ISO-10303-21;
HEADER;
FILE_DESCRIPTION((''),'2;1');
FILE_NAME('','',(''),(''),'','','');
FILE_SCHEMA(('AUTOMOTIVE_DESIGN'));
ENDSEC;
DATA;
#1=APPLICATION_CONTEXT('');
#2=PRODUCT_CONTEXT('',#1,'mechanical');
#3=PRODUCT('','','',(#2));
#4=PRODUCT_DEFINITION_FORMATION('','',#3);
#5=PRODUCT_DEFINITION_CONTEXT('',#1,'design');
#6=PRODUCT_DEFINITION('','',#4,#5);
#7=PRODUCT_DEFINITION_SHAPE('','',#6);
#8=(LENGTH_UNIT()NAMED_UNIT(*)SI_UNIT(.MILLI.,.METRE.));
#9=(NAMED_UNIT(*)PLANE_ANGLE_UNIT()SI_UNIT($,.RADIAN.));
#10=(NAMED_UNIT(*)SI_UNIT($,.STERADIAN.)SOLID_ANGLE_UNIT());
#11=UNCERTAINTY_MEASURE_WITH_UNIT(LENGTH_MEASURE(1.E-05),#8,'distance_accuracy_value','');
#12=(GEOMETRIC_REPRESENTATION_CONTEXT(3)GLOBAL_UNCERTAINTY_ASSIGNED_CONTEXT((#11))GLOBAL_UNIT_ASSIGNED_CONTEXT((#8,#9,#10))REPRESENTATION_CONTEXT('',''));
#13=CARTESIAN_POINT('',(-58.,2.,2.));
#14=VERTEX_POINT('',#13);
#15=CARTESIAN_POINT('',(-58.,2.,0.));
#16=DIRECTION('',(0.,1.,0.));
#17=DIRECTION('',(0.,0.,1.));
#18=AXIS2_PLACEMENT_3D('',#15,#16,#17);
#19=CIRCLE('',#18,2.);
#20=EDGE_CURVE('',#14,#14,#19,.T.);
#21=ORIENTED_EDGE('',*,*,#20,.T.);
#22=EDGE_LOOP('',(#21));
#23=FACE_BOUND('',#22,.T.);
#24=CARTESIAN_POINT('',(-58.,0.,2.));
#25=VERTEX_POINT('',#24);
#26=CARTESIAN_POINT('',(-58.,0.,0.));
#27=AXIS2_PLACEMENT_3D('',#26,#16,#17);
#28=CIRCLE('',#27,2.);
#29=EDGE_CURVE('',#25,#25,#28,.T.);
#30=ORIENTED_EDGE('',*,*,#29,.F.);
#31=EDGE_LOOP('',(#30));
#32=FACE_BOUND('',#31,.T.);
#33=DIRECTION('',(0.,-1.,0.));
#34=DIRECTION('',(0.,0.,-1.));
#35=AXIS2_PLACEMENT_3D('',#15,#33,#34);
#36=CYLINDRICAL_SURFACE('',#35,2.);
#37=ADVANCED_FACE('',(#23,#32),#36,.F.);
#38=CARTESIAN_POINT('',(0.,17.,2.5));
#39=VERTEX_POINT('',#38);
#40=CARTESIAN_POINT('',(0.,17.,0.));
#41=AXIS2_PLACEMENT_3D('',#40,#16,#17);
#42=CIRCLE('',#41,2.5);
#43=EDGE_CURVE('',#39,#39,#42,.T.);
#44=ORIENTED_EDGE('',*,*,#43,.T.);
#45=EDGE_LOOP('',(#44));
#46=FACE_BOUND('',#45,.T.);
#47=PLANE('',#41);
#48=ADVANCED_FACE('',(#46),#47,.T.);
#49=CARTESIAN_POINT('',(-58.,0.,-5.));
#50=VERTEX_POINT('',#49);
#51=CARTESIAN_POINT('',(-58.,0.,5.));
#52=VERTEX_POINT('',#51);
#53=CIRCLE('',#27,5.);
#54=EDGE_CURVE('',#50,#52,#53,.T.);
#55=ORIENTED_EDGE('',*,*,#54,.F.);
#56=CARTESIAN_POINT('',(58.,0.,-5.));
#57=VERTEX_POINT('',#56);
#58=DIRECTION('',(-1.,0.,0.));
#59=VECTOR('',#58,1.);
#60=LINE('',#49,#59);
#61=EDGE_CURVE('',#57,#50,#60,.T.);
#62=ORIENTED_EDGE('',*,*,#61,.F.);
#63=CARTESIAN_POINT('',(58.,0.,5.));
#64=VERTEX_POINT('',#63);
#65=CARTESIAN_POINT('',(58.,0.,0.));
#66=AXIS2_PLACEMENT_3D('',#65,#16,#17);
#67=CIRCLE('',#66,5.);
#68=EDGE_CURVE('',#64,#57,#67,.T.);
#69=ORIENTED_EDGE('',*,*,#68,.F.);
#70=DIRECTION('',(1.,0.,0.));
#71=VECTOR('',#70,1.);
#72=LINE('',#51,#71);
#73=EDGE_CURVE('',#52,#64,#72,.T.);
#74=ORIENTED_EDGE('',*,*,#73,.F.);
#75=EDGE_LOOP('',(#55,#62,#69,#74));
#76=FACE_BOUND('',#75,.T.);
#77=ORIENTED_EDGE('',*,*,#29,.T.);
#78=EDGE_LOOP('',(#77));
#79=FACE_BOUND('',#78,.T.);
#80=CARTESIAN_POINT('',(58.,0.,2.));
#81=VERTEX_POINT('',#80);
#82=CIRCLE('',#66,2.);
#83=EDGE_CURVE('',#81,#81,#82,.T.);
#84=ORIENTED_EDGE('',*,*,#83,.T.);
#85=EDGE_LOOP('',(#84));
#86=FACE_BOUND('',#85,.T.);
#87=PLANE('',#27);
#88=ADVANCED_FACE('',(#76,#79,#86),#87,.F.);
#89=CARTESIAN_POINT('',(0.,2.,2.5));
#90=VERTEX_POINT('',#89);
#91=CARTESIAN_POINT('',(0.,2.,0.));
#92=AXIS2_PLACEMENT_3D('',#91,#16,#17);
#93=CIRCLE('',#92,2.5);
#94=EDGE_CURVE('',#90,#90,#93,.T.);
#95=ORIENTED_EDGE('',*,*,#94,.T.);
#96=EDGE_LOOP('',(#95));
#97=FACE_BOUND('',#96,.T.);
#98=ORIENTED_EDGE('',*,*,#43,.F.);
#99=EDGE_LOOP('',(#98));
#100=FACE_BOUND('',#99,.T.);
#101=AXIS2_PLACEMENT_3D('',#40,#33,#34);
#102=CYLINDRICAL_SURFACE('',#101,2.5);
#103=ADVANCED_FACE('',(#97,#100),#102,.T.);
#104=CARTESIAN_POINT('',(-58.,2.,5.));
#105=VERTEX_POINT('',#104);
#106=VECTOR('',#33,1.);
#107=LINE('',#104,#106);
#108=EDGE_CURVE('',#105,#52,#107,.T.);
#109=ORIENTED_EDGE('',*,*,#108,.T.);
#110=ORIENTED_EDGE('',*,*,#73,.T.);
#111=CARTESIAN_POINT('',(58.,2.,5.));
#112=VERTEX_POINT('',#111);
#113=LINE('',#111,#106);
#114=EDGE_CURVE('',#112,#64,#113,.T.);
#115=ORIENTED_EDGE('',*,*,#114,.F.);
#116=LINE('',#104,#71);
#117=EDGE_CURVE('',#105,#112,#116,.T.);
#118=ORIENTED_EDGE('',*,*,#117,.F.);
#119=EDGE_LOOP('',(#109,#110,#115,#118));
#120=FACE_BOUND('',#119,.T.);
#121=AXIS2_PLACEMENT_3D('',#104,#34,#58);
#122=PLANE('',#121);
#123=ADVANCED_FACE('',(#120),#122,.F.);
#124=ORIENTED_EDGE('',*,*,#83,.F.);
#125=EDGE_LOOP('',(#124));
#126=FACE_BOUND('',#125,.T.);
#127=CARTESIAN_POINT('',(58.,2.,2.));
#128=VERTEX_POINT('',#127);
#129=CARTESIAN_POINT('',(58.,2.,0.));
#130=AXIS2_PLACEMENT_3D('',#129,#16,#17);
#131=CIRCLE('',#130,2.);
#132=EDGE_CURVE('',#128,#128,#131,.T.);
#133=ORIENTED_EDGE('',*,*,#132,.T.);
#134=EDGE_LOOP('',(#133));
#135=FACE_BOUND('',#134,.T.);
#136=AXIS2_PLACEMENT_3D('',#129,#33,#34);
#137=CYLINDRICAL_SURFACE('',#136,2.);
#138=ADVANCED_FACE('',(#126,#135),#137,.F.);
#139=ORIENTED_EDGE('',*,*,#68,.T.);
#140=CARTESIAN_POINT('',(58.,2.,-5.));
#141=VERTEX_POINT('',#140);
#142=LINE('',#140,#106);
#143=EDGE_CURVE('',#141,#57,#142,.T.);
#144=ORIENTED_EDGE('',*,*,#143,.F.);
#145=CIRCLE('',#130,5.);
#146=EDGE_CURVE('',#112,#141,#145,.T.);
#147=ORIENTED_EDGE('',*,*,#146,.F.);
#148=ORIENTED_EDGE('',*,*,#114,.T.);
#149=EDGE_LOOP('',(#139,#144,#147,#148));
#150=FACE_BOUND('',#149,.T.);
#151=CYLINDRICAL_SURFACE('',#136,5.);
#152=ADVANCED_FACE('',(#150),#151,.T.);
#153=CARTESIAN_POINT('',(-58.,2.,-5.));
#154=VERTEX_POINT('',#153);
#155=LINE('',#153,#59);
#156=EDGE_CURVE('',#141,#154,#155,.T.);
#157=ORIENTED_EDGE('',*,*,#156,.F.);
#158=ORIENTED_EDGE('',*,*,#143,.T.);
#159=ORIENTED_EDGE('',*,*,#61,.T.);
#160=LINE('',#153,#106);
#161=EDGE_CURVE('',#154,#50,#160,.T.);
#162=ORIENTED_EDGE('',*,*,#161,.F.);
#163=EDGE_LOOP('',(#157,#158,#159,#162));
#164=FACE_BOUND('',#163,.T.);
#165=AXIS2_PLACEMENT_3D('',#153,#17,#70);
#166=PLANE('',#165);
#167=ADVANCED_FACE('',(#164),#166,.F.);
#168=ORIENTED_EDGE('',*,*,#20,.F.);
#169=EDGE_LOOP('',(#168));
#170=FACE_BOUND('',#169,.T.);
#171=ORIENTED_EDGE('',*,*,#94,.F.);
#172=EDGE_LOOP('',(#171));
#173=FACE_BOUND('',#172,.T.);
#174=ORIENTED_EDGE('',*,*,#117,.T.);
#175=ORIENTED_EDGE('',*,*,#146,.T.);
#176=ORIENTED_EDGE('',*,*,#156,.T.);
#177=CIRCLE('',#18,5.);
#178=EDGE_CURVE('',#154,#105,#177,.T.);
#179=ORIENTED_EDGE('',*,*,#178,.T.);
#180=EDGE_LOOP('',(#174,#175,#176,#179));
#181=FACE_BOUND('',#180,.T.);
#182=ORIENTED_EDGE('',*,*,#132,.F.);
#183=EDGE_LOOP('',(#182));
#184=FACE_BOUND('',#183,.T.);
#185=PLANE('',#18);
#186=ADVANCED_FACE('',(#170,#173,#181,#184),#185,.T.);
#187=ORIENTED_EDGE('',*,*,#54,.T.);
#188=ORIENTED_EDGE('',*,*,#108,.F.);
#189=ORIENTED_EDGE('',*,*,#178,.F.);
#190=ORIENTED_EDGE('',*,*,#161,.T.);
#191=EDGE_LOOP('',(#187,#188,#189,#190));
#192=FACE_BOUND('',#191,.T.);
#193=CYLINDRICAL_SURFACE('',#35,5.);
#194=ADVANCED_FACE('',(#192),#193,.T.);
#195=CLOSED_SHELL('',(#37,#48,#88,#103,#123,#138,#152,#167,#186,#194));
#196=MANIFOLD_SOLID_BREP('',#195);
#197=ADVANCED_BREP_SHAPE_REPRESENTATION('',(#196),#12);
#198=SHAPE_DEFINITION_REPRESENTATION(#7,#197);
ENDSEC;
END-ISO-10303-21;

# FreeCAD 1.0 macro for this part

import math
import FreeCAD as App
import Part
import Sketcher
Q = App.Units.Quantity

doc = App.newDocument("Part")
body = doc.addObject("PartDesign::Body", "Body")

sketch1 = body.newObject("Sketcher::SketchObject", "Sketch")
sketch1.AttachmentSupport = (doc.getObject("XZ_Plane"), [""])
sketch1.MapMode = "FlatFace"
sketch1.addGeometry(Part.LineSegment(App.Vector(58, -5, 0), App.Vector(-58, -5, 0)), False)
sketch1.addGeometry(Part.ArcOfCircle(Part.Circle(App.Vector(-58, 0, 0), App.Vector(0, 0, 1), 5), math.radians(90), math.radians(270)), False)
sketch1.addGeometry(Part.LineSegment(App.Vector(-58, 5, 0), App.Vector(58, 5, 0)), False)
sketch1.addGeometry(Part.ArcOfCircle(Part.Circle(App.Vector(58, 0, 0), App.Vector(0, 0, 1), 5), math.radians(-90), math.radians(90)), False)
sketch1.addGeometry(Part.Circle(App.Vector(58, 0, 0), App.Vector(0, 0, 1), 2), False)
sketch1.addGeometry(Part.Circle(App.Vector(-58, 0, 0), App.Vector(0, 0, 1), 2), False)
sketch1.addConstraint(Sketcher.Constraint("Tangent", 0, 2, 1, 2))
sketch1.addConstraint(Sketcher.Constraint("Tangent", 1, 1, 2, 1))
sketch1.addConstraint(Sketcher.Constraint("Tangent", 2, 2, 3, 2))
sketch1.addConstraint(Sketcher.Constraint("Tangent", 3, 1, 0, 1))
sketch1.addConstraint(Sketcher.Constraint("Horizontal", 0))
sketch1.addConstraint(Sketcher.Constraint("Horizontal", 2))
sketch1.addConstraint(Sketcher.Constraint("Coincident", 4, 3, 3, 3))
sketch1.addConstraint(Sketcher.Constraint("Coincident", 5, 3, 1, 3))
sketch1.addConstraint(Sketcher.Constraint("Equal", 4, 5))
sketch1.addConstraint(Sketcher.Constraint("Symmetric", 1, 3, 3, 3, -1, 1))
sketch1.addConstraint(Sketcher.Constraint("Diameter", 4, Q("4 mm")))
sketch1.addConstraint(Sketcher.Constraint("Radius", 1, Q("5 mm")))
sketch1.addConstraint(Sketcher.Constraint("DistanceX", 0, 2, 0, 1, Q("116 mm")))
pad1 = body.newObject("PartDesign::Pad", "Pad")
pad1.Profile = sketch1
pad1.Length = 2
pad1.Reversed = True

sketch2 = body.newObject("Sketcher::SketchObject", "Sketch001")
sketch2.AttachmentSupport = (doc.getObject("XZ_Plane"), [""])
sketch2.MapMode = "FlatFace"
sketch2.AttachmentOffset = App.Placement(App.Vector(0, 0, -2), App.Rotation())
sketch2.addGeometry(Part.Circle(App.Vector(0, 0, 0), App.Vector(0, 0, 1), 2.5), False)
sketch2.addConstraint(Sketcher.Constraint("Coincident", 0, 3, -1, 1))
sketch2.addConstraint(Sketcher.Constraint("Diameter", 0, Q("5 mm")))
pad2 = body.newObject("PartDesign::Pad", "Pad001")
pad2.Profile = sketch2
pad2.Length = 15
pad2.Reversed = True

doc.recompute()
